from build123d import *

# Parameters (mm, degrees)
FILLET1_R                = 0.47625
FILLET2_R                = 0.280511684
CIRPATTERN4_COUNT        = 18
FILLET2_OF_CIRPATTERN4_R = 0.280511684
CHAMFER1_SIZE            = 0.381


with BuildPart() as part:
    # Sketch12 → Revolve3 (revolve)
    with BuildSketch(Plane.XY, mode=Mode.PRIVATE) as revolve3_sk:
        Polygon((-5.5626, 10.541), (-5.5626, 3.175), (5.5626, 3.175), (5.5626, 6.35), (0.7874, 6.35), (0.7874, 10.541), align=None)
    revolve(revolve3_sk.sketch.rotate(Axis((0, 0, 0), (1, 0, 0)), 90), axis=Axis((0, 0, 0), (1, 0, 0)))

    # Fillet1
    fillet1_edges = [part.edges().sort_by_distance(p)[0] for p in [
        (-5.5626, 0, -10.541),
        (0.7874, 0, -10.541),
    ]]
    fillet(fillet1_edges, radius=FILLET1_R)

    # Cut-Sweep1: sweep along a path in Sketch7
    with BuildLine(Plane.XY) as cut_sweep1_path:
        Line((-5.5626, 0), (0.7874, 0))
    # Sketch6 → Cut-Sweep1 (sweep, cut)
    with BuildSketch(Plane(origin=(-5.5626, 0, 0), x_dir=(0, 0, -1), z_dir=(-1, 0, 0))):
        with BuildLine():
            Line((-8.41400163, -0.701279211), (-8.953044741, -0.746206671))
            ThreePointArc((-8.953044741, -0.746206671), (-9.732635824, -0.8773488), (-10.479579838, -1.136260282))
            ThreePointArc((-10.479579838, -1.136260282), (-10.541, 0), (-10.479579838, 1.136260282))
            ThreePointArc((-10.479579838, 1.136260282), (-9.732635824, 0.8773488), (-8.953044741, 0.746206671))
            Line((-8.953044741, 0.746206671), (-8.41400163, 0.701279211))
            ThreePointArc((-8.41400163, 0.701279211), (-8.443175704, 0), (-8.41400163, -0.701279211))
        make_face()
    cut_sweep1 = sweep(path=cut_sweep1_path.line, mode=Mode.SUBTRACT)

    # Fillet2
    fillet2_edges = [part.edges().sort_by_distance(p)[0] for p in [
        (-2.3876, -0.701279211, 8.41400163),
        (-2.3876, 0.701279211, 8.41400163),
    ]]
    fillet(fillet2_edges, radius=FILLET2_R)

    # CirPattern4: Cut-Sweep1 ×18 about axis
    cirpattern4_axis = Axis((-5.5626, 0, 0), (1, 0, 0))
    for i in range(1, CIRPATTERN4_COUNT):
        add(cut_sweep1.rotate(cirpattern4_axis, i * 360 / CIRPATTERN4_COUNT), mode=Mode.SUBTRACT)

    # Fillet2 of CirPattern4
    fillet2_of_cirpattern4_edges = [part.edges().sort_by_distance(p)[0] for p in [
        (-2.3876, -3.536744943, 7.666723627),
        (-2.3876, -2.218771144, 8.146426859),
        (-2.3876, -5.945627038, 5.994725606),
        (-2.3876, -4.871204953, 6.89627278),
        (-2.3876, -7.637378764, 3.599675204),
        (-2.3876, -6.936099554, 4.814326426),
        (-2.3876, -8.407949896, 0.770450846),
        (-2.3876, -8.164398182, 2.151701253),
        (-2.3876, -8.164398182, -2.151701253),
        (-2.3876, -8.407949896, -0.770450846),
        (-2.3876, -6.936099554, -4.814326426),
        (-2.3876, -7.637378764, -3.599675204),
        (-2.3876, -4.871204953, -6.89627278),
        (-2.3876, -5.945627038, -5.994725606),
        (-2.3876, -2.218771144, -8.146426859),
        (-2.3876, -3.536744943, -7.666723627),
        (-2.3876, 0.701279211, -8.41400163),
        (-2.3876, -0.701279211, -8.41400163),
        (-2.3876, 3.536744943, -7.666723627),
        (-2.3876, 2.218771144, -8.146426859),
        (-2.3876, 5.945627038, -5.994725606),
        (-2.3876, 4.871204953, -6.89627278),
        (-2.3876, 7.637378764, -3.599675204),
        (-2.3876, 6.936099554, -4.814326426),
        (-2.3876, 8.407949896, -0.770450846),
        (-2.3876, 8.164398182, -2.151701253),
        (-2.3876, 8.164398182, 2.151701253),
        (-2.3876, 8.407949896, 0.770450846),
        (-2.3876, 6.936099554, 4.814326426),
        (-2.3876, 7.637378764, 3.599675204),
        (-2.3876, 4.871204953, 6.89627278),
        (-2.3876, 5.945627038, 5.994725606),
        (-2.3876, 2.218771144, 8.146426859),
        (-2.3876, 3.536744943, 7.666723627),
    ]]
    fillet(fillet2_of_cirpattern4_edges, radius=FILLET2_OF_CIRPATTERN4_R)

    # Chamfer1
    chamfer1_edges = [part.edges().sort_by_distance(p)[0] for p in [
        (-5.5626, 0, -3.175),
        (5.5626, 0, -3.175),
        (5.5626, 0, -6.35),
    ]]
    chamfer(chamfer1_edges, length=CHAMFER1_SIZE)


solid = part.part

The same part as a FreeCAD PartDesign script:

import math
import FreeCAD as App
import Part
import Sketcher
from FreeCAD import Vector
Q = App.Units.Quantity


def edges_at(feature, points):
    """Names of the edges that pass closest to the given points."""
    edges = feature.Shape.Edges
    near = lambda p: min(range(len(edges)), key=lambda i: edges[i].distToShape(Part.Vertex(*p))[0])
    return sorted({f"Edge{near(p) + 1}" for p in points})


def add_polygon(sketch, points):
    """Adds a closed chain of lines whose ends are joined by coincident constraints."""
    first, n = sketch.GeometryCount, len(points)
    for a, b in zip(points, points[1:] + points[:1]):
        sketch.addGeometry(Part.LineSegment(App.Vector(*a, 0), App.Vector(*b, 0)), False)
    for i in range(n):
        sketch.addConstraint(Sketcher.Constraint("Coincident", first + i, 2, first + (i + 1) % n, 1))

doc = App.newDocument("Part")
body = doc.addObject("PartDesign::Body", "Body")

# Sketch on XY plane
sketch1 = body.newObject("Sketcher::SketchObject", "Sketch")
sketch1.AttachmentSupport = (doc.getObject("XY_Plane"), [""])
sketch1.MapMode = "FlatFace"
add_polygon(sketch1, [(-5.5626, 10.541), (-5.5626, 3.175), (5.5626, 3.175), (5.5626, 6.35), (0.7874, 6.35), (0.7874, 10.541)])  # lines 0-5
sketch1.addConstraint(Sketcher.Constraint("Vertical", 0))
sketch1.addConstraint(Sketcher.Constraint("Horizontal", 1))
sketch1.addConstraint(Sketcher.Constraint("Vertical", 2))
sketch1.addConstraint(Sketcher.Constraint("Horizontal", 3))
sketch1.addConstraint(Sketcher.Constraint("Vertical", 4))
sketch1.addConstraint(Sketcher.Constraint("Horizontal", 5))
sketch1.addConstraint(Sketcher.Constraint("DistanceX", 5, 2, 5, 1, Q("0.25 in")))
sketch1.addConstraint(Sketcher.Constraint("DistanceY", 0, 2, 0, 1, Q("0.29 in")))
sketch1.addConstraint(Sketcher.Constraint("DistanceX", 1, 1, 1, 2, Q("0.438 in")))
sketch1.addConstraint(Sketcher.Constraint("DistanceY", 2, 1, 2, 2, Q("0.125 in")))
sketch1.addConstraint(Sketcher.Constraint("DistanceY", -1, 1, 2, 2, Q("0.25 in")))
sketch1.addConstraint(Sketcher.Constraint("DistanceX", 0, 2, -1, 1, Q("0.219 in")))
revolution = body.newObject("PartDesign::Revolution", "Revolution")
revolution.Profile = sketch1
revolution.ReferenceAxis = (sketch1, ["H_Axis"])
revolution.Angle = 360
doc.recompute()

fillet = body.newObject("PartDesign::Fillet", "Fillet")
fillet.Base = (revolution, edges_at(revolution, [(-5.563, 0, -10.541), (0.787, 0, -10.541)]))
fillet.Radius = 0.47625

# Sketch on YZ plane
sketch2 = body.newObject("Sketcher::SketchObject", "Sketch001")
sketch2.AttachmentSupport = (doc.getObject("YZ_Plane"), [""])
sketch2.MapMode = "FlatFace"
sketch2.AttachmentOffset = App.Placement(Vector(0, 0, -0.219 * 25.4), App.Rotation())
sketch2.addGeometry(Part.LineSegment(Vector(0.746207, 8.953045, 0), Vector(0.701279, 8.414002, 0)), False)
sketch2.addGeometry(Part.ArcOfCircle(Part.Circle(Vector(0, 0, 0), Vector(0, 0, 1), 8.443176), math.radians(85.235598), math.radians(94.764402)), False)
sketch2.addGeometry(Part.LineSegment(Vector(-0.701279, 8.414002, 0), Vector(-0.746207, 8.953045, 0)), False)
sketch2.addGeometry(Part.ArcOfCircle(Part.Circle(Vector(-5.468893, 8.559424, 0), Vector(0, 0, 1), 4.739061), math.radians(4.764402), math.radians(23.902177)), False)
sketch2.addGeometry(Part.ArcOfCircle(Part.Circle(Vector(0, 0, 0), Vector(0, 0, 1), 10.541), math.radians(83.811815), math.radians(96.188185)), False)
sketch2.addGeometry(Part.ArcOfCircle(Part.Circle(Vector(5.468893, 8.559424, 0), Vector(0, 0, 1), 4.739061), math.radians(156.097823), math.radians(175.235598)), False)
sketch2.addConstraint(Sketcher.Constraint("Coincident", 0, 2, 1, 1))
sketch2.addConstraint(Sketcher.Constraint("Coincident", 1, 2, 2, 1))
sketch2.addConstraint(Sketcher.Constraint("Tangent", 2, 2, 3, 1))
sketch2.addConstraint(Sketcher.Constraint("Coincident", 3, 2, 4, 2))
sketch2.addConstraint(Sketcher.Constraint("Coincident", 4, 1, 5, 1))
sketch2.addConstraint(Sketcher.Constraint("Tangent", 5, 2, 0, 1))
sketch2.addConstraint(Sketcher.Constraint("Coincident", 1, 3, -1, 1))
sketch2.addConstraint(Sketcher.Constraint("Coincident", 4, 3, -1, 1))
sketch2.addConstraint(Sketcher.Constraint("Equal", 3, 5))
sketch2.addConstraint(Sketcher.Constraint("Symmetric", 3, 3, 5, 3, -2))
sketch2.addConstraint(Sketcher.Constraint("Horizontal", 0, 2, 1, 2))
sketch2.addConstraint(Sketcher.Constraint("Radius", 4, Q("0.415 in")))
sketch2.addConstraint(Sketcher.Constraint("Radius", 3, Q("4.739061 mm")))
sketch2.addConstraint(Sketcher.Constraint("Radius", 1, Q("8.443176 mm")))
sketch2.addConstraint(Sketcher.Constraint("DistanceY", 2, 2, 3, 2, Q("0.0600998 in")))
sketch2.addConstraint(Sketcher.Constraint("DistanceY", -1, 1, 0, 2, Q("8.414002 mm")))
sketch2.addConstraint(Sketcher.Constraint("DistanceX", 2, 2, 5, 3, Q("6.215099 mm")))

# Sketch on XY plane
sketch3 = body.newObject("Sketcher::SketchObject", "Sketch002")
sketch3.AttachmentSupport = (doc.getObject("XY_Plane"), [""])
sketch3.MapMode = "FlatFace"
sketch3.addGeometry(Part.LineSegment(Vector(-5.5626, 0, 0), Vector(0.7874, 0, 0)), False)
sketch3.addConstraint(Sketcher.Constraint("Horizontal", 0))
sketch3.addConstraint(Sketcher.Constraint("PointOnObject", 0, 1, -1))
sketch3.addConstraint(Sketcher.Constraint("DistanceX", 0, 1, 0, 2, Q("0.25 in")))
sketch3.addConstraint(Sketcher.Constraint("DistanceX", 0, 1, -1, 1, Q("0.219 in")))
doc.recompute()

subtractivepipe = body.newObject("PartDesign::SubtractivePipe", "SubtractivePipe")
subtractivepipe.Profile = sketch2
subtractivepipe.Spine = (sketch3, ["Edge1"])
doc.recompute()

fillet2 = body.newObject("PartDesign::Fillet", "Fillet001")
fillet2.Base = (subtractivepipe, edges_at(subtractivepipe, [(-2.388, -0.701, 8.414), (-2.388, 0.701, 8.414)]))
fillet2.Radius = 0.280512
doc.recompute()

polarpattern = body.newObject("PartDesign::PolarPattern", "PolarPattern")
polarpattern.Originals = [subtractivepipe]
polarpattern.Axis = (doc.getObject("X_Axis"), [""])
polarpattern.Angle = 360
polarpattern.Occurrences = 18
body.Tip = polarpattern
doc.recompute()

fillet3 = body.newObject("PartDesign::Fillet", "Fillet002")
fillet3.Base = (polarpattern, edges_at(polarpattern, [
    (-2.388, -3.537, 7.667),
    (-2.388, -2.219, 8.146),
    (-2.388, -5.946, 5.995),
    (-2.388, -4.871, 6.896),
    (-2.388, -7.637, 3.6),
    (-2.388, -6.936, 4.814),
    (-2.388, -8.408, 0.77),
    (-2.388, -8.164, 2.152),
    (-2.388, -8.164, -2.152),
    (-2.388, -8.408, -0.77),
    (-2.388, -6.936, -4.814),
    (-2.388, -7.637, -3.6),
    (-2.388, -4.871, -6.896),
    (-2.388, -5.946, -5.995),
    (-2.388, -2.219, -8.146),
    (-2.388, -3.537, -7.667),
    (-2.388, 0.701, -8.414),
    (-2.388, -0.701, -8.414),
    (-2.388, 3.537, -7.667),
    (-2.388, 2.219, -8.146),
    (-2.388, 5.946, -5.995),
    (-2.388, 4.871, -6.896),
    (-2.388, 7.637, -3.6),
    (-2.388, 6.936, -4.814),
    (-2.388, 8.408, -0.77),
    (-2.388, 8.164, -2.152),
    (-2.388, 8.164, 2.152),
    (-2.388, 8.408, 0.77),
    (-2.388, 6.936, 4.814),
    (-2.388, 7.637, 3.6),
    (-2.388, 4.871, 6.896),
    (-2.388, 5.946, 5.995),
    (-2.388, 2.219, 8.146),
    (-2.388, 3.537, 7.667),
]))
fillet3.Radius = 0.280512
doc.recompute()

chamfer = body.newObject("PartDesign::Chamfer", "Chamfer")
chamfer.Base = (fillet3, edges_at(fillet3, [(-5.563, 0, -3.175), (5.563, 0, -3.175), (5.563, 0, -6.35)]))
chamfer.Size = Q("0.015 in")

doc.recompute()
